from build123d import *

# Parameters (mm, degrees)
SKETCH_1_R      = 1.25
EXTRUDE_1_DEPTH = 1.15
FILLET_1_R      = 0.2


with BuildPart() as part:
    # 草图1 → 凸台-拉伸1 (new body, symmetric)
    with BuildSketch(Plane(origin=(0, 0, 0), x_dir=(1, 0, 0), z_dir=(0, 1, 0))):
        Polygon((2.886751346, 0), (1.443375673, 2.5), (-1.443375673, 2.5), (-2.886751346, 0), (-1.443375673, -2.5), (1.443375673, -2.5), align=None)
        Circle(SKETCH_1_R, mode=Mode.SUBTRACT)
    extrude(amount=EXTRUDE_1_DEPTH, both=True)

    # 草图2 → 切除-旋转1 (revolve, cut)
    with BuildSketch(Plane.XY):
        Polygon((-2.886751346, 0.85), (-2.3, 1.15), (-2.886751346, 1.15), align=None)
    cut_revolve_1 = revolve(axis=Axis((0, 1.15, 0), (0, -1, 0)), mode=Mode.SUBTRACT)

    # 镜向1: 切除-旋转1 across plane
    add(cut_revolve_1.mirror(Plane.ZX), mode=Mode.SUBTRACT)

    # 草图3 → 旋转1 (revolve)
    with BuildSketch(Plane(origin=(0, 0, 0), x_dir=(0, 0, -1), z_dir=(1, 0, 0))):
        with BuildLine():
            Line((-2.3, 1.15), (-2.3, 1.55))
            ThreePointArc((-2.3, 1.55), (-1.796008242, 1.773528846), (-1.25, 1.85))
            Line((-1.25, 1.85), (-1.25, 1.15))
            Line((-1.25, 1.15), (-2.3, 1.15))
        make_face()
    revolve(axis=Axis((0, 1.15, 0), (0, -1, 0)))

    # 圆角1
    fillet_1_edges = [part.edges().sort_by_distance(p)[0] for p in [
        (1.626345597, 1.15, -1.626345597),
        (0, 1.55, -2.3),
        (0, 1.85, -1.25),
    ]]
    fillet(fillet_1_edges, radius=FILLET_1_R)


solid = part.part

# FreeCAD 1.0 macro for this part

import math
import FreeCAD as App
import Part
import Sketcher
from FreeCAD import Vector
Q = App.Units.Quantity


def edges_at(feature, points):
    """Names of the edges that pass closest to the given points."""
    edges = feature.Shape.Edges
    near = lambda p: min(range(len(edges)), key=lambda i: edges[i].distToShape(Part.Vertex(*p))[0])
    return sorted({f"Edge{near(p) + 1}" for p in points})

doc = App.newDocument("Part")
params = doc.addObject("Spreadsheet::Sheet", "Params")
for row, (alias, value) in enumerate([
    ("sketch1_diameter", "2.5 mm"),
    ("pad1_length", "2.3 mm"),
    ("sketch2_height", "0.3 mm"),
    ("groove_angle", "360 deg"),
    ("sketch3_width", "0.4 mm"),
    ("sketch3_width2", "0.7 mm"),
    ("sketch3_height", "1.05 mm"),
    ("revolution_angle", "360 deg"),
    ("fillet_radius", "0.2 mm"),
], start=1):
    params.set(f"A{row}", alias)
    params.set(f"B{row}", "=" + value)
    params.setAlias(f"B{row}", alias)

body = doc.addObject("PartDesign::Body", "Body")

sketch1 = doc.addObject("Sketcher::SketchObject", "Sketch")
body.addObject(sketch1)
sketch1.AttachmentSupport = (doc.XZ_Plane, [""])
sketch1.MapMode = "FlatFace"
sketch1.addGeometry([
    Part.LineSegment(Vector(2.886751, 0, 0), Vector(1.443376, -2.5, 0)),
    Part.LineSegment(Vector(1.443376, -2.5, 0), Vector(-1.443376, -2.5, 0)),
    Part.LineSegment(Vector(-1.443376, -2.5, 0), Vector(-2.886751, 0, 0)),
    Part.LineSegment(Vector(-2.886751, 0, 0), Vector(-1.443376, 2.5, 0)),
    Part.LineSegment(Vector(-1.443376, 2.5, 0), Vector(1.443376, 2.5, 0)),
    Part.LineSegment(Vector(1.443376, 2.5, 0), Vector(2.886751, 0, 0)),
    Part.Circle(Vector(0, 0, 0), Vector(0, 0, 1), 1.25),
], False)
sketch1.addConstraint([
    Sketcher.Constraint("Coincident", 0, 2, 1, 1),
    Sketcher.Constraint("Coincident", 1, 2, 2, 1),
    Sketcher.Constraint("Coincident", 2, 2, 3, 1),
    Sketcher.Constraint("Coincident", 3, 2, 4, 1),
    Sketcher.Constraint("Coincident", 4, 2, 5, 1),
    Sketcher.Constraint("Coincident", 5, 2, 0, 1),
    Sketcher.Constraint("Horizontal", 1),
    Sketcher.Constraint("Horizontal", 4),
    Sketcher.Constraint("Coincident", 6, 3, -1, 1),
    Sketcher.Constraint("Symmetric", 0, 2, 3, 2, -1, 1),
    Sketcher.Constraint("Symmetric", 2, 2, 5, 2, -1, 1),
    Sketcher.Constraint("PointOnObject", 2, 2, -1),
    Sketcher.Constraint("Parallel", 2, 5),
    Sketcher.Constraint("Vertical", 1, 2, 3, 2),
    Sketcher.Constraint("Diameter", 6, 2.5),
    Sketcher.Constraint("Angle", 0, Q("-120 deg")),
    Sketcher.Constraint("DistanceY", 1, 2, 3, 2, 5.0),
    Sketcher.Constraint("DistanceX", 1, 2, 1, 1, 2.886751),
])
sketch1.setExpression("Constraints[14]", "Params.sketch1_diameter")
pad1 = doc.addObject("PartDesign::Pad", "Pad")
body.addObject(pad1)
pad1.Profile = sketch1
pad1.setExpression("Length", "Params.pad1_length")
pad1.Midplane = True

sketch2 = doc.addObject("Sketcher::SketchObject", "Sketch001")
body.addObject(sketch2)
sketch2.AttachmentSupport = (doc.XY_Plane, [""])
sketch2.MapMode = "FlatFace"
sketch2.addGeometry([
    Part.LineSegment(Vector(-2.886751, 0.85, 0), Vector(-2.3, 1.15, 0)),
    Part.LineSegment(Vector(-2.3, 1.15, 0), Vector(-2.886751, 1.15, 0)),
    Part.LineSegment(Vector(-2.886751, 1.15, 0), Vector(-2.886751, 0.85, 0)),
], False)
sketch2.addConstraint([
    Sketcher.Constraint("Coincident", 0, 2, 1, 1),
    Sketcher.Constraint("Coincident", 1, 2, 2, 1),
    Sketcher.Constraint("Coincident", 2, 2, 0, 1),
    Sketcher.Constraint("Horizontal", 1),
    Sketcher.Constraint("Vertical", 2),
    Sketcher.Constraint("DistanceY", 2, 2, 2, 1, 0.3),
    Sketcher.Constraint("DistanceX", 0, 2, -1, 1, 2.3),
    Sketcher.Constraint("DistanceY", -1, 1, 0, 2, 1.15),
    Sketcher.Constraint("DistanceX", 1, 2, 1, 1, 0.586751),
])
sketch2.setExpression("Constraints[5]", "Params.sketch2_height")
groove = doc.addObject("PartDesign::Groove", "Groove")
body.addObject(groove)
groove.Profile = sketch2
groove.ReferenceAxis = (sketch2, ["V_Axis"])
groove.setExpression("Angle", "Params.groove_angle")
doc.recompute()

mirrored = doc.addObject("PartDesign::Mirrored", "Mirrored")
body.addObject(mirrored)
mirrored.Originals = [groove]
mirrored.MirrorPlane = (doc.XZ_Plane, [""])
body.Tip = mirrored

sketch3 = doc.addObject("Sketcher::SketchObject", "Sketch002")
body.addObject(sketch3)
sketch3.AttachmentSupport = (doc.YZ_Plane, [""])
sketch3.MapMode = "FlatFace"
sketch3.addGeometry([
    Part.LineSegment(Vector(1.55, 2.3, 0), Vector(1.15, 2.3, 0)),
    Part.LineSegment(Vector(1.15, 2.3, 0), Vector(1.15, 1.25, 0)),
    Part.LineSegment(Vector(1.15, 1.25, 0), Vector(1.85, 1.25, 0)),
    Part.ArcOfCircle(Part.Circle(Vector(-0.1375, 1.25, 0), Vector(0, 0, 1), 1.9875), math.radians(0), math.radians(31.890792)),
], False)
sketch3.addConstraint([
    Sketcher.Constraint("Coincident", 0, 2, 1, 1),
    Sketcher.Constraint("Coincident", 1, 2, 2, 1),
    Sketcher.Constraint("Coincident", 2, 2, 3, 1),
    Sketcher.Constraint("Coincident", 3, 2, 0, 1),
    Sketcher.Constraint("Horizontal", 0),
    Sketcher.Constraint("Vertical", 1),
    Sketcher.Constraint("Horizontal", 2),
    Sketcher.Constraint("Horizontal", 3, 3, 1, 2),
    Sketcher.Constraint("DistanceX", 0, 2, 0, 1, 0.4),
    Sketcher.Constraint("DistanceX", 2, 1, 2, 2, 0.7),
    Sketcher.Constraint("DistanceY", 1, 2, 1, 1, 1.05),
    Sketcher.Constraint("DistanceY", -1, 1, 0, 2, 2.3),
    Sketcher.Constraint("DistanceX", -1, 1, 0, 2, 1.15),
])
sketch3.setExpression("Constraints[8]", "Params.sketch3_width")
sketch3.setExpression("Constraints[9]", "Params.sketch3_width2")
sketch3.setExpression("Constraints[10]", "Params.sketch3_height")
revolution = doc.addObject("PartDesign::Revolution", "Revolution")
body.addObject(revolution)
revolution.Profile = sketch3
revolution.ReferenceAxis = (sketch3, ["H_Axis"])
revolution.setExpression("Angle", "Params.revolution_angle")
doc.recompute()

fillet = doc.addObject("PartDesign::Fillet", "Fillet")
body.addObject(fillet)
fillet.Base = (revolution, edges_at(revolution, [(1.626, 1.15, -1.626), (0, 1.55, -2.3), (0, 1.85, -1.25)]))
fillet.setExpression("Radius", "Params.fillet_radius")

doc.recompute()
